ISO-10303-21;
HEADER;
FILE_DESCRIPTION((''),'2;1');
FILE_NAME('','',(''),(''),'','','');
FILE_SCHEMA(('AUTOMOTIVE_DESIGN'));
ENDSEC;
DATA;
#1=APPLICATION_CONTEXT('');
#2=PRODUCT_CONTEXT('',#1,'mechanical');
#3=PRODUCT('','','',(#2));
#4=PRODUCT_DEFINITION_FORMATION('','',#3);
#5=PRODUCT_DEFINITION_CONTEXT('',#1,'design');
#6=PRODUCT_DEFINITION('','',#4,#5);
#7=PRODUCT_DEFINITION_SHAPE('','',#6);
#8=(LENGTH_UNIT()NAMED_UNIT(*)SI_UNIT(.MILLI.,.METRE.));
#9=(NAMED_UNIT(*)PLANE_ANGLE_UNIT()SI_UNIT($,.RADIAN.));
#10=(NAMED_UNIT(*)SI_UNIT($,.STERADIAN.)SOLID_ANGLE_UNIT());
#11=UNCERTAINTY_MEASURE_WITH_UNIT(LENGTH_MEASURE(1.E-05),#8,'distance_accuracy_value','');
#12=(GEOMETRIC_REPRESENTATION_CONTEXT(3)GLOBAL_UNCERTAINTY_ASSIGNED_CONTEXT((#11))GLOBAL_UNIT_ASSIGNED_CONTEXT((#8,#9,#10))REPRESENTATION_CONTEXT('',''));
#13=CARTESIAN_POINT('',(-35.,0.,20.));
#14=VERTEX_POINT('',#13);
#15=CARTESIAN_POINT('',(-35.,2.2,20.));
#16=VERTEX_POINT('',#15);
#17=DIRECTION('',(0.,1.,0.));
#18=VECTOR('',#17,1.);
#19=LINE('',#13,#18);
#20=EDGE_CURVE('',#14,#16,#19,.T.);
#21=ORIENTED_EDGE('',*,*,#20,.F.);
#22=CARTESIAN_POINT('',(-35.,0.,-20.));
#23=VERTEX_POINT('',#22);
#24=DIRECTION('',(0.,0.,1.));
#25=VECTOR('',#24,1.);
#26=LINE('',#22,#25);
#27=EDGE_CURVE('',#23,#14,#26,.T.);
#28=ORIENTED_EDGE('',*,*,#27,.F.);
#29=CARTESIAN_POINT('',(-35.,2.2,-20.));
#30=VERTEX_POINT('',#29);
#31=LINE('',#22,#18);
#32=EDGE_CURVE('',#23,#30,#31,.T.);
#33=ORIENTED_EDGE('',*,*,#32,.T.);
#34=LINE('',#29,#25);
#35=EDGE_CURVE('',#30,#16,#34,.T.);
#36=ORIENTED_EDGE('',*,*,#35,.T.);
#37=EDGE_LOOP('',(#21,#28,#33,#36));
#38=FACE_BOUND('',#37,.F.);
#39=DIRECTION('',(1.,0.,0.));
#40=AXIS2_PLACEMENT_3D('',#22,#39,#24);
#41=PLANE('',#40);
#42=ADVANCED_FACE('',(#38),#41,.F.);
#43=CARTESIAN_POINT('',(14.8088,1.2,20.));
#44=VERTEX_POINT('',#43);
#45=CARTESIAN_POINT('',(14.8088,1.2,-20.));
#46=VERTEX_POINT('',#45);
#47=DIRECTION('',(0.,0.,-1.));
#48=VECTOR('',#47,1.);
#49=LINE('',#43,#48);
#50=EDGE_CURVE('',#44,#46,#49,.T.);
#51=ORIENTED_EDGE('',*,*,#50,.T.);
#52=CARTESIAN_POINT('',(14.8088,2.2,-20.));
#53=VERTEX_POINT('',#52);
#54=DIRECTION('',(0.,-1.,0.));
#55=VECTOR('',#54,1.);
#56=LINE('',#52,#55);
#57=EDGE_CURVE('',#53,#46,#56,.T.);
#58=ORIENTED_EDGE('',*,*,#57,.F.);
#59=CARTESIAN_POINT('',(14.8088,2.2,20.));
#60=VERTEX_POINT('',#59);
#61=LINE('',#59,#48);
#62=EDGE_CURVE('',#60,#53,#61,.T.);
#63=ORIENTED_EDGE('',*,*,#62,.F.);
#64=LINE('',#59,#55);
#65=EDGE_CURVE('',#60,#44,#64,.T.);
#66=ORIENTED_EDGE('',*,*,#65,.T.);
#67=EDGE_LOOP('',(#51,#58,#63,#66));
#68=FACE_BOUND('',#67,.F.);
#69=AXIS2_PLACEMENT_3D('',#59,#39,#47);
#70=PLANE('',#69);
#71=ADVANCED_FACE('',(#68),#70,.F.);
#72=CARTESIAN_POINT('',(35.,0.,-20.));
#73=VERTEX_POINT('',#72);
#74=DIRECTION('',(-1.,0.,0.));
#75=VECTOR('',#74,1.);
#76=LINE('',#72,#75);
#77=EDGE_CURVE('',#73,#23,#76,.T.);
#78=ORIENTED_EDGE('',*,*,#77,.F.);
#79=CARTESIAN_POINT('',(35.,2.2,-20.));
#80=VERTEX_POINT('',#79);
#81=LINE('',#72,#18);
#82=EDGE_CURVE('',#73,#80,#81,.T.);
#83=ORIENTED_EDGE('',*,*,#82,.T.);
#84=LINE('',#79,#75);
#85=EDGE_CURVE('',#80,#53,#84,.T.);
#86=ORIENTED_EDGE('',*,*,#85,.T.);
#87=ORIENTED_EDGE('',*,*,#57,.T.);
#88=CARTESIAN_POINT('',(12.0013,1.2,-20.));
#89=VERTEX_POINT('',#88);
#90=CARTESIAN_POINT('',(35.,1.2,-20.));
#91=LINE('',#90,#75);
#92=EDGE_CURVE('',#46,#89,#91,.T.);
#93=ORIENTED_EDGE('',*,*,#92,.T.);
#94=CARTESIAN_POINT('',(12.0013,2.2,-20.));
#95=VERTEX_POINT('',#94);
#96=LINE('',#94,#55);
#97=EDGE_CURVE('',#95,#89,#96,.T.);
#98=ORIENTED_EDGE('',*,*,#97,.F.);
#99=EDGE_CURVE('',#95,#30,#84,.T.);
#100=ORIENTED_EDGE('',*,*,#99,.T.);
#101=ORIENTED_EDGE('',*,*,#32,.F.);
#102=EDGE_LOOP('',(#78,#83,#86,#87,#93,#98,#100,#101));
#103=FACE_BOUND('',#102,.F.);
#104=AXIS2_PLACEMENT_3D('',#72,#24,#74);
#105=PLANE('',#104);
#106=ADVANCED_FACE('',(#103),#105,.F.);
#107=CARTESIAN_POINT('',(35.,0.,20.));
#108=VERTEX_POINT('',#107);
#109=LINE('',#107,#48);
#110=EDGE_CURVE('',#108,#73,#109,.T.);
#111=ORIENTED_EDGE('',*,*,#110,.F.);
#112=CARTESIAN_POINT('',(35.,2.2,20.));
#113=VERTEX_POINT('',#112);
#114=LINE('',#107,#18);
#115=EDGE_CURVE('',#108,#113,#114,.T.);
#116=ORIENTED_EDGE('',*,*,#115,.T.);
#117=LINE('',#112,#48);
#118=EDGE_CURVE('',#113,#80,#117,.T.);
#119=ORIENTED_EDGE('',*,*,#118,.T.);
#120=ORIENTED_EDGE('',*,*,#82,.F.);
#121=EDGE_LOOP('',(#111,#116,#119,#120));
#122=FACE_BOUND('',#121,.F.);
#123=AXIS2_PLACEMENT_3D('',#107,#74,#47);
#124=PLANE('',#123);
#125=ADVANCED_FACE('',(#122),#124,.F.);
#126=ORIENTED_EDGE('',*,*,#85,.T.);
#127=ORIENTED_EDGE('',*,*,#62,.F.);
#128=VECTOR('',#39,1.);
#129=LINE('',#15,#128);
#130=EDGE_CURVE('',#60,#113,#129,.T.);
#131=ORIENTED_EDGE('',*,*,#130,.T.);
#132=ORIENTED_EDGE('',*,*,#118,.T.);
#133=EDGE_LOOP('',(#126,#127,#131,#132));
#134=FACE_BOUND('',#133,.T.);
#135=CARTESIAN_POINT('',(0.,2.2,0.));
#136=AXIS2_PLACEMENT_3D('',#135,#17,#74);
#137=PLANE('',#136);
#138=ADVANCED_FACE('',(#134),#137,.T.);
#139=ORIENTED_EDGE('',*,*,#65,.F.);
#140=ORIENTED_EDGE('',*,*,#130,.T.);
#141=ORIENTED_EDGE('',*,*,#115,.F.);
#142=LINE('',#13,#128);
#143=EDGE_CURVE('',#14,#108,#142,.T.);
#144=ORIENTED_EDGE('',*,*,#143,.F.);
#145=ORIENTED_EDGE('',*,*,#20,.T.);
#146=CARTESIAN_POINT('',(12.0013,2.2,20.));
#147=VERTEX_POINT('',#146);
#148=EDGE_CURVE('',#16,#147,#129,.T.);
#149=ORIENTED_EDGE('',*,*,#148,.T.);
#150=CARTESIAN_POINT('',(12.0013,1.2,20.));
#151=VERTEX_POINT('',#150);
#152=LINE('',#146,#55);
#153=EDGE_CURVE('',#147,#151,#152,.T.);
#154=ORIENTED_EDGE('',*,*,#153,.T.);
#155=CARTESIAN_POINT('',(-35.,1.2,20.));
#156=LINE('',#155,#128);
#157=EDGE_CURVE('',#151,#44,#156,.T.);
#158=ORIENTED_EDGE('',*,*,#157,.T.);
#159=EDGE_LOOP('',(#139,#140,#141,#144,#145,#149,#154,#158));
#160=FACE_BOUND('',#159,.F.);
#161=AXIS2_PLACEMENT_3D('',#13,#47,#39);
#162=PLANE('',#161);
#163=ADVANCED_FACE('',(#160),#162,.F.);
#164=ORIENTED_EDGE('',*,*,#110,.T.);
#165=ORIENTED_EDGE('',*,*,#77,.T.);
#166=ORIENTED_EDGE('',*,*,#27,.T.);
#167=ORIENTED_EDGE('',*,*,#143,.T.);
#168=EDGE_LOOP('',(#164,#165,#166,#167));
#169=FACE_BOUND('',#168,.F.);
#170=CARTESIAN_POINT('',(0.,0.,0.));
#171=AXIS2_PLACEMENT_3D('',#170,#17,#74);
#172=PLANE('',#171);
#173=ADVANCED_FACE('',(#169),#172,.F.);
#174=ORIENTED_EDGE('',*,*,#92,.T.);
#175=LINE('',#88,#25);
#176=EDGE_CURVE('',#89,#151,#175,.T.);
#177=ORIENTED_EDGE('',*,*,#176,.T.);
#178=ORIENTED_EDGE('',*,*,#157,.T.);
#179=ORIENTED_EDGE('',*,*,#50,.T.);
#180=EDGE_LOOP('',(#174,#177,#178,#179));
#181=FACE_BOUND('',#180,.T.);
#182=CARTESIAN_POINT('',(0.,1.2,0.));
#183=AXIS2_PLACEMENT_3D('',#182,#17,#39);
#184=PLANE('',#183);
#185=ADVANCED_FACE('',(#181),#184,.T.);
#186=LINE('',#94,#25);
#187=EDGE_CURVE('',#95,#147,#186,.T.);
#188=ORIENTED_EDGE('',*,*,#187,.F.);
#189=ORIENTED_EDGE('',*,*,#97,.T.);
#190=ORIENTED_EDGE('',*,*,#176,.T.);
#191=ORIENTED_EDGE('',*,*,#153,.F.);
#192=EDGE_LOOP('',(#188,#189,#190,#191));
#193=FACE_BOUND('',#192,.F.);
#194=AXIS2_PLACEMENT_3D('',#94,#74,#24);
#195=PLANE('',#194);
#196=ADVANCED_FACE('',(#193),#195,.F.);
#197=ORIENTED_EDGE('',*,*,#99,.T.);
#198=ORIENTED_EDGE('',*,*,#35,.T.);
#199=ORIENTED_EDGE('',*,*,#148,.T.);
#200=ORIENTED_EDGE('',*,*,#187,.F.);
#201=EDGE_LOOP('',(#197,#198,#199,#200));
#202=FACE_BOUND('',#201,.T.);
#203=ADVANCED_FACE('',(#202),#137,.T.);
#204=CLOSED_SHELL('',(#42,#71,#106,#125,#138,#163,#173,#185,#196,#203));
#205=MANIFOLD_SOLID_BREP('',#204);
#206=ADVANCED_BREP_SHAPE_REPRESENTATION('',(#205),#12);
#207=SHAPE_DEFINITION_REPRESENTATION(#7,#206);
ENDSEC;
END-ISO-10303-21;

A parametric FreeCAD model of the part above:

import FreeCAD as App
import Part
import Sketcher

V = App.Vector

doc = App.newDocument("Part")
body = doc.addObject("PartDesign::Body", "Body")

sketch1 = body.newObject("Sketcher::SketchObject", "Sketch")
sketch1.AttachmentSupport = (doc.getObject("XZ_Plane"), [""])
sketch1.MapMode = "FlatFace"
sketch1.addGeometry([
    Part.LineSegment(V(35, 20, 0), V(35, -20, 0)),
    Part.LineSegment(V(35, -20, 0), V(-35, -20, 0)),
    Part.LineSegment(V(-35, -20, 0), V(-35, 20, 0)),
    Part.LineSegment(V(-35, 20, 0), V(35, 20, 0)),
], False)
sketch1.addConstraint([
    Sketcher.Constraint("Coincident", 0, 2, 1, 1),
    Sketcher.Constraint("Coincident", 1, 2, 2, 1),
    Sketcher.Constraint("Coincident", 2, 2, 3, 1),
    Sketcher.Constraint("Coincident", 3, 2, 0, 1),
    Sketcher.Constraint("Vertical", 0),
    Sketcher.Constraint("Horizontal", 1),
    Sketcher.Constraint("Vertical", 2),
    Sketcher.Constraint("Horizontal", 3),
    Sketcher.Constraint("Symmetric", 0, 2, 2, 2, -1, 1),
    Sketcher.Constraint("DistanceX", 1, 2, 1, 1, 70.0),
    Sketcher.Constraint("DistanceY", 0, 2, 0, 1, 40.0),
])
pad1 = body.newObject("PartDesign::Pad", "Pad")
pad1.Profile = sketch1
pad1.Length = 2.2
pad1.Reversed = True

sketch2 = body.newObject("Sketcher::SketchObject", "Sketch001")
sketch2.AttachmentSupport = (doc.getObject("XZ_Plane"), [""])
sketch2.MapMode = "FlatFace"
sketch2.AttachmentOffset = App.Placement(V(0, 0, -2.2), App.Rotation())
sketch2.addGeometry([
    Part.LineSegment(V(12, -20, 0), V(12, 20, 0)),
    Part.LineSegment(V(12, 20, 0), V(14.8, 20, 0)),
    Part.LineSegment(V(14.8, 20, 0), V(14.8, -20, 0)),
    Part.LineSegment(V(14.8, -20, 0), V(12, -20, 0)),
], False)
sketch2.addConstraint([
    Sketcher.Constraint("Coincident", 0, 2, 1, 1),
    Sketcher.Constraint("Coincident", 1, 2, 2, 1),
    Sketcher.Constraint("Coincident", 2, 2, 3, 1),
    Sketcher.Constraint("Coincident", 3, 2, 0, 1),
    Sketcher.Constraint("Vertical", 0),
    Sketcher.Constraint("Horizontal", 1),
    Sketcher.Constraint("Vertical", 2),
    Sketcher.Constraint("Horizontal", 3),
    Sketcher.Constraint("DistanceY", 0, 1, 0, 2, 40.0),
    Sketcher.Constraint("DistanceY", -1, 1, 0, 2, 20.0),
    Sketcher.Constraint("DistanceX", 1, 1, 1, 2, 2.8075),
    Sketcher.Constraint("DistanceX", -1, 1, 0, 2, 12.0013),
])
pocket1 = body.newObject("PartDesign::Pocket", "Pocket")
pocket1.Profile = sketch2
pocket1.Length = 1
pocket1.Reversed = True

doc.recompute()
